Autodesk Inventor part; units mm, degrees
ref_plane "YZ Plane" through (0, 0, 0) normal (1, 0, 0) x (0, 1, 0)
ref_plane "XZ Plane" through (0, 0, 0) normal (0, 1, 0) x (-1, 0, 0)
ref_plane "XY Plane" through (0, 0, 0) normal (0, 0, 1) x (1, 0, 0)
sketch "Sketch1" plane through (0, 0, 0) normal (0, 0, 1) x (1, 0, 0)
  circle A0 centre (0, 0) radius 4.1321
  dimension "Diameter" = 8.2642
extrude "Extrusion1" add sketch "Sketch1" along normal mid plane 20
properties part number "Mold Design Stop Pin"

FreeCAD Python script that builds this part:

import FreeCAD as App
import Part
import Sketcher

V = App.Vector

doc = App.newDocument("Part")
body = doc.addObject("PartDesign::Body", "Body")

# Sketch on XY plane
sketch1 = body.newObject("Sketcher::SketchObject", "Sketch")
sketch1.AttachmentSupport = (doc.getObject("XY_Plane"), [""])
sketch1.MapMode = "FlatFace"
sketch1.addGeometry(Part.Circle(V(0, 0, 0), V(0, 0, 1), 4.1321), False)
sketch1.addConstraint([
    Sketcher.Constraint("Coincident", 0, 3, -1, 1),
    Sketcher.Constraint("Diameter", 0, 8.2642),
])
pad1 = body.newObject("PartDesign::Pad", "Pad")
pad1.Profile = sketch1
pad1.Length = 20
pad1.Midplane = True

doc.recompute()
